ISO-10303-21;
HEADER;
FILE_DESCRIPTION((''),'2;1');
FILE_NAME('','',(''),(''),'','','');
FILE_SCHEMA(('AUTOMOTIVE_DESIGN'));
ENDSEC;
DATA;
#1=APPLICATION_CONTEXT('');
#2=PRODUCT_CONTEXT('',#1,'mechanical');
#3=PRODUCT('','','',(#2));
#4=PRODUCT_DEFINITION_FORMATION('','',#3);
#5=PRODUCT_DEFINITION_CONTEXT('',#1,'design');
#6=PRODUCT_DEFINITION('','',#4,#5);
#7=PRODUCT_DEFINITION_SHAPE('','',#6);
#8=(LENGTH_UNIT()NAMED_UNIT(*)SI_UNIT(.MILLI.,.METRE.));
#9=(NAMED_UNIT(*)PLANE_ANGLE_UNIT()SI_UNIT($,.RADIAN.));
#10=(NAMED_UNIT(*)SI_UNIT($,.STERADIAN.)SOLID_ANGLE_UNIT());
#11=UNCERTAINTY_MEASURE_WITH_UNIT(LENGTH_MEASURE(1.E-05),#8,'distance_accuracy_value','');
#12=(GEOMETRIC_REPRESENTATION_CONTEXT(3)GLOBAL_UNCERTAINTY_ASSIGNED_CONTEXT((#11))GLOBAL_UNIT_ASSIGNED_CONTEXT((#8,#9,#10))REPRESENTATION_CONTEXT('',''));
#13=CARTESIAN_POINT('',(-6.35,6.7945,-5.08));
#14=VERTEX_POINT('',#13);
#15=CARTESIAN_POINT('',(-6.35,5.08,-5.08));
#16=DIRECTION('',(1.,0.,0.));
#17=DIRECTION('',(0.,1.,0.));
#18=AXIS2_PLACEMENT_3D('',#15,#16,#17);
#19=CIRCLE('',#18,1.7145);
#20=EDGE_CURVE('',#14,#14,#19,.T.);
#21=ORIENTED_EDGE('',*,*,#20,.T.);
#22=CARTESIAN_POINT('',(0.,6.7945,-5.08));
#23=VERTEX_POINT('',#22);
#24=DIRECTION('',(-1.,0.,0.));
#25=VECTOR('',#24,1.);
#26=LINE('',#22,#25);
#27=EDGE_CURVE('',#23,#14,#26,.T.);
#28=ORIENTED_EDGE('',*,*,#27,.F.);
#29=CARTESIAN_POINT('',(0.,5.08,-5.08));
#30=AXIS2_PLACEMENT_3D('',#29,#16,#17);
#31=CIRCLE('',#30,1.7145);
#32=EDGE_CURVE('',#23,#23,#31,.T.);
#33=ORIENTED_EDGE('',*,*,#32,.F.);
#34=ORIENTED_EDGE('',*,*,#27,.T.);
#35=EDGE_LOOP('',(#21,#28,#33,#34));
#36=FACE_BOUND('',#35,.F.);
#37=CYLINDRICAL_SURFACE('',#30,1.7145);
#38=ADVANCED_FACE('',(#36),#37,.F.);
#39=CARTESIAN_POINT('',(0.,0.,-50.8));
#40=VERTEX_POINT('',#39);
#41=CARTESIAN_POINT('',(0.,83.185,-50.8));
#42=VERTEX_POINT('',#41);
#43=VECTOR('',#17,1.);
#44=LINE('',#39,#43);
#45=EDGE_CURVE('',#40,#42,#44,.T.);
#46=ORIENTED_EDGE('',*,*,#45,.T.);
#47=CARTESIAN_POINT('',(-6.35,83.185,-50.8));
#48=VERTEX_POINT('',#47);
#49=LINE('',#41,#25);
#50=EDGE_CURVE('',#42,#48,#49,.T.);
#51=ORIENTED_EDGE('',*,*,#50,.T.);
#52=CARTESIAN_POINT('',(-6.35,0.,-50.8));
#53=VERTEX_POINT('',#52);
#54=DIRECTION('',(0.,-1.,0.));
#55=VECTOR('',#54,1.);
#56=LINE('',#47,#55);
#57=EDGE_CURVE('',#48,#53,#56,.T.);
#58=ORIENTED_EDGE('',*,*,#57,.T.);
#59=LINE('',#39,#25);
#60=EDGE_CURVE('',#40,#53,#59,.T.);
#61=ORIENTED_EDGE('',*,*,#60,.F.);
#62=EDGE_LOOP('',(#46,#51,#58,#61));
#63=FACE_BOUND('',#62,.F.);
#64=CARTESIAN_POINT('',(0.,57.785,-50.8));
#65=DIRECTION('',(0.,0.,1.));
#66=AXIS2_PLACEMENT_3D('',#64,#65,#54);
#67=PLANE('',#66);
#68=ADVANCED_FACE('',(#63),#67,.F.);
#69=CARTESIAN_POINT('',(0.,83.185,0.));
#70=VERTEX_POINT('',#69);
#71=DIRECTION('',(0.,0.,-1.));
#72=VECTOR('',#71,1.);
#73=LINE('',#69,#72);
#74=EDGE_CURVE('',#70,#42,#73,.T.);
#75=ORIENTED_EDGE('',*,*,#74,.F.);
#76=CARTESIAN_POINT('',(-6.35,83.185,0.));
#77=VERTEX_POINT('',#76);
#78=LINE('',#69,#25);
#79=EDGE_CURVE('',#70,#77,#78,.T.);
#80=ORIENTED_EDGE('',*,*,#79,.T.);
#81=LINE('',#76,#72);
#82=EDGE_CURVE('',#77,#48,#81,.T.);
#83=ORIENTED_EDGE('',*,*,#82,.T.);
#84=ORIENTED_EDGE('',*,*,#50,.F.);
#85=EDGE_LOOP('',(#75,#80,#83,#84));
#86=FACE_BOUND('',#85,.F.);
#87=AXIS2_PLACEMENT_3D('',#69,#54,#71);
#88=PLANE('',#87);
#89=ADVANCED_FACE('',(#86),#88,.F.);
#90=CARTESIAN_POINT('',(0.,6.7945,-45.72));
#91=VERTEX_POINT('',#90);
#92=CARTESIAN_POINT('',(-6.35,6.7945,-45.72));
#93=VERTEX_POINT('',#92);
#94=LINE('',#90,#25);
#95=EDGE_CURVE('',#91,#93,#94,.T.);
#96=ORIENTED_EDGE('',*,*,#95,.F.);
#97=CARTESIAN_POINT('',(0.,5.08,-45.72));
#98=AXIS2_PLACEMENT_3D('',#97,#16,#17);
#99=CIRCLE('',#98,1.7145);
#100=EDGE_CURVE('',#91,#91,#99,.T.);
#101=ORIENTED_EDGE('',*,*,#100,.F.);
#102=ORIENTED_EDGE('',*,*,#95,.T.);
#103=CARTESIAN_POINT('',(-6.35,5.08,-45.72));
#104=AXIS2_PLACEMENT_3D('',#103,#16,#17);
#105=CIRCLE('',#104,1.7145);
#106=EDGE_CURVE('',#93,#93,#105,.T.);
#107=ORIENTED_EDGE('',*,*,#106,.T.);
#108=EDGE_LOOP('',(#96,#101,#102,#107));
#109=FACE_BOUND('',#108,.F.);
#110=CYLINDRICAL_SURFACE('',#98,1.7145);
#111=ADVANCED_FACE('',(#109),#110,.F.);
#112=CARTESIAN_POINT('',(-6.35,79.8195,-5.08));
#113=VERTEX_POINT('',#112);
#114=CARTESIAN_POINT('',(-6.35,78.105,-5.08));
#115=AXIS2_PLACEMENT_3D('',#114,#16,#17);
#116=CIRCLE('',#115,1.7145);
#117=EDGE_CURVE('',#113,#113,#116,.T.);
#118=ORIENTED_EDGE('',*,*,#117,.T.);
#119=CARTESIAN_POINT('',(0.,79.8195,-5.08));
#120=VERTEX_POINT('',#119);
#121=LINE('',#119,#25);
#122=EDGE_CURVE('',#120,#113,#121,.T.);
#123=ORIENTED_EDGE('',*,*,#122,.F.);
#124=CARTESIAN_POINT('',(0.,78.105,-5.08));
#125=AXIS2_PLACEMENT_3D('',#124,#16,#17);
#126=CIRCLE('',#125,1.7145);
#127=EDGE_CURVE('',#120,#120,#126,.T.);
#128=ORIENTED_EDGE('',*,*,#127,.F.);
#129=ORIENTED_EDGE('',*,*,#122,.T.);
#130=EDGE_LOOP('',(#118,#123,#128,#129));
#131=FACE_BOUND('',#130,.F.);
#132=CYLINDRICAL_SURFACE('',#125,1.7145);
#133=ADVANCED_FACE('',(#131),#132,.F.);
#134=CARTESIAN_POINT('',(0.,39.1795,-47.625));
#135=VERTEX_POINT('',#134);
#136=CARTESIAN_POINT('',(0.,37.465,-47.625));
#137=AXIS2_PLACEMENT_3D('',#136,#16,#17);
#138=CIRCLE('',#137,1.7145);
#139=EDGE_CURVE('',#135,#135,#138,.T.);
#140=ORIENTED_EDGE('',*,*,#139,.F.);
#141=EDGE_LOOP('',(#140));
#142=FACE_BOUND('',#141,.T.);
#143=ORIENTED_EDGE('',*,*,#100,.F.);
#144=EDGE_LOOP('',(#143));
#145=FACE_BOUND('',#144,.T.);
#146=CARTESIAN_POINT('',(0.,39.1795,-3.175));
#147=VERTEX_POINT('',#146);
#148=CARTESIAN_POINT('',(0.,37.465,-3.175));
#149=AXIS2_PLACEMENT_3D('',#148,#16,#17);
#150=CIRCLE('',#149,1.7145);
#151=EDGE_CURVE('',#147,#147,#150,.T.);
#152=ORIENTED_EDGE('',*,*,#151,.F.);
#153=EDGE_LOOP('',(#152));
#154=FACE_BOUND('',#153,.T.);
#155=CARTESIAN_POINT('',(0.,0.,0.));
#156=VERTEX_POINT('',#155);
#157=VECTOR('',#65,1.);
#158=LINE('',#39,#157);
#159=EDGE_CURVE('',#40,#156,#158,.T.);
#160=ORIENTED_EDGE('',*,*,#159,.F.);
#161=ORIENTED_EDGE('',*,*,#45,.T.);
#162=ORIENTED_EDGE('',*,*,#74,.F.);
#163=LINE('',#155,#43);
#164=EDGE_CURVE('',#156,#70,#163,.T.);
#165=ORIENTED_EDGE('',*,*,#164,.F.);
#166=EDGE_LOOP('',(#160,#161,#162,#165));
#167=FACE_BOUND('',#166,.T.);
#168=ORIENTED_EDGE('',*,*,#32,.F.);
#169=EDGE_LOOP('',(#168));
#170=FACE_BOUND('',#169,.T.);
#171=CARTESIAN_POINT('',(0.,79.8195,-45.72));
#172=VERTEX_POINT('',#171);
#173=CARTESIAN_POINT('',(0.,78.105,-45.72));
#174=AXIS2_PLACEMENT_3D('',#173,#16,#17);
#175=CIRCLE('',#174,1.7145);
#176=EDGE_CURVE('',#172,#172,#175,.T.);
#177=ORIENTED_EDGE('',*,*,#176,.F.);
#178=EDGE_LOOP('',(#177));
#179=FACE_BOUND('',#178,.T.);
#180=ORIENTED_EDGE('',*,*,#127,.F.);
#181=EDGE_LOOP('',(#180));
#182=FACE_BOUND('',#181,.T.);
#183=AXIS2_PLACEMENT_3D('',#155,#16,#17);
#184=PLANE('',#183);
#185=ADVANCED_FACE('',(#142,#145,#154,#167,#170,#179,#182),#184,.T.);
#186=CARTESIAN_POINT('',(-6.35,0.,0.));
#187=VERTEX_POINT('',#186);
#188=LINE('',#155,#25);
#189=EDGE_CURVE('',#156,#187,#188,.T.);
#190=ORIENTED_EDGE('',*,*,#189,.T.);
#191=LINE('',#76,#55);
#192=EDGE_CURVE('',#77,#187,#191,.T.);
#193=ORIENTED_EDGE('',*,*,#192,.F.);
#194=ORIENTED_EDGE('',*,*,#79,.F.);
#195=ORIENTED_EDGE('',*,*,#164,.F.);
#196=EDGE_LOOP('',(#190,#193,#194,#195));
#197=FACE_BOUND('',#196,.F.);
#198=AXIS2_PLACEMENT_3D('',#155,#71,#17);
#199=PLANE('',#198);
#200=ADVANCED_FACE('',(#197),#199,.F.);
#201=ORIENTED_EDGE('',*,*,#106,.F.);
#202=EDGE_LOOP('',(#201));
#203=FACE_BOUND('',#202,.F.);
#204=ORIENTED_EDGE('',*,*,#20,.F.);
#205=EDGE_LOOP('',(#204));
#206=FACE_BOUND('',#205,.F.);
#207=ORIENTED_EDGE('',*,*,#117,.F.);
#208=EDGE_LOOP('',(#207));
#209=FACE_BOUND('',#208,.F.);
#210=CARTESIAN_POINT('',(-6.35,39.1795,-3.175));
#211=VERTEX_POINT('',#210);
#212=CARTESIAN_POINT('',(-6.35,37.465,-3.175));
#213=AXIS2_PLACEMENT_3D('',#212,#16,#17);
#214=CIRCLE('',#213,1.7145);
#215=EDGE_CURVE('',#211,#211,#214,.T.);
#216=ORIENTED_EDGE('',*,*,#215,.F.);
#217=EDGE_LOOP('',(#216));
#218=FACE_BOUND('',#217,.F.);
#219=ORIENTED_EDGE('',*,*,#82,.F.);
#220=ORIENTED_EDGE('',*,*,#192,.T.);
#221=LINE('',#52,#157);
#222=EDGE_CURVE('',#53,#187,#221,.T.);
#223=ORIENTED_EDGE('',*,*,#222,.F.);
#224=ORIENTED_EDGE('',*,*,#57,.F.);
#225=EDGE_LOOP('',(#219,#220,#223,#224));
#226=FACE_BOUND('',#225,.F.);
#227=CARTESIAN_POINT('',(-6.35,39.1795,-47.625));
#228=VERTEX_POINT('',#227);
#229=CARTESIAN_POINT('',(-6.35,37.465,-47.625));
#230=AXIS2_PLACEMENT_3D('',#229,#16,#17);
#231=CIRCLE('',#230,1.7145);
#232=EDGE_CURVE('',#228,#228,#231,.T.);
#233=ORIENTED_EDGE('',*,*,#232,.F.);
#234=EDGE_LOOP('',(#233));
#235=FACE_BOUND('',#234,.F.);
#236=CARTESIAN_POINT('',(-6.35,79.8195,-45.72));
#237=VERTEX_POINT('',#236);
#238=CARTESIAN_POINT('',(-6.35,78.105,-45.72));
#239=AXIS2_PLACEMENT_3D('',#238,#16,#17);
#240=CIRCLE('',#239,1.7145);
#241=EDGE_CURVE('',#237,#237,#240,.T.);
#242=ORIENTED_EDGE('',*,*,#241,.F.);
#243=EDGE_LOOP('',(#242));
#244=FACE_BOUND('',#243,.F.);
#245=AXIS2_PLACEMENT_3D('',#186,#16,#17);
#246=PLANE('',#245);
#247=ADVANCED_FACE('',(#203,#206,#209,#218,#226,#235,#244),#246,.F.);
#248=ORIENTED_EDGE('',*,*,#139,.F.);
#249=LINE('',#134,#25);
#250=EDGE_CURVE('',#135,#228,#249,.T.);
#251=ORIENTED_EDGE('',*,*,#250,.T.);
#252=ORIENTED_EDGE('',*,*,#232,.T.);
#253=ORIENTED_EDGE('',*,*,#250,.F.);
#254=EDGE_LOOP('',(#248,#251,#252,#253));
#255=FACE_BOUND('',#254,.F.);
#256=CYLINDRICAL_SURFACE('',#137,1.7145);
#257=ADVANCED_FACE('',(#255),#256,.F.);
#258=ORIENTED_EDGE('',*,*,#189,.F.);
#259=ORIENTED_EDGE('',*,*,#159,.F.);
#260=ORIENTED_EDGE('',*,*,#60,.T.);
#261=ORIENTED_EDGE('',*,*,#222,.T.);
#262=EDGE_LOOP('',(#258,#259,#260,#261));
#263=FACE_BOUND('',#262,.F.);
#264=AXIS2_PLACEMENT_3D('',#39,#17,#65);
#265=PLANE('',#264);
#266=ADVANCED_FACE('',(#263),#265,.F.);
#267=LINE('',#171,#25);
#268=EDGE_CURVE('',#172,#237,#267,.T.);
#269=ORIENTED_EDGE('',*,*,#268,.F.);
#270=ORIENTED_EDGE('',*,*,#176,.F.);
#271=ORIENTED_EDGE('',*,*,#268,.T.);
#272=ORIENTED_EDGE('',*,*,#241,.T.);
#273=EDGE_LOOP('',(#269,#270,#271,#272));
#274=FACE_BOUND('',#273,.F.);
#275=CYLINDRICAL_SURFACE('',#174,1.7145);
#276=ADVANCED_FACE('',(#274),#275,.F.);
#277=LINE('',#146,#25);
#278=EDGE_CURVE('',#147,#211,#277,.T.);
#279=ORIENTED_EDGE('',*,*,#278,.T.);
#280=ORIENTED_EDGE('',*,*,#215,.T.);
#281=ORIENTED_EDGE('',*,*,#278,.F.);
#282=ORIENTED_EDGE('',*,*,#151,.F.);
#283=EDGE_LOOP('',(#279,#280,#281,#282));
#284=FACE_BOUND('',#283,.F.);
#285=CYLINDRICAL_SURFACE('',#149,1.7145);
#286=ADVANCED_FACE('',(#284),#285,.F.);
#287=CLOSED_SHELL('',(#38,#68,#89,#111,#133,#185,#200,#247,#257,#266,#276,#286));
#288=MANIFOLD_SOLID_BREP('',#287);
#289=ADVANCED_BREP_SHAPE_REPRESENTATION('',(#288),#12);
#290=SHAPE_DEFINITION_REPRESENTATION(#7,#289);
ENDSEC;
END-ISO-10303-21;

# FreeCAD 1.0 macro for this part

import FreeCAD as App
import Part
import Sketcher
Q = App.Units.Quantity

doc = App.newDocument("Part")
body = doc.addObject("PartDesign::Body", "Body")

sketch1 = body.newObject("Sketcher::SketchObject", "Sketch")
sketch1.AttachmentSupport = (doc.getObject("YZ_Plane"), [""])
sketch1.MapMode = "FlatFace"
sketch1.addGeometry(Part.LineSegment(App.Vector(0, 0, 0), App.Vector(0, -50.8, 0)), False)
sketch1.addGeometry(Part.LineSegment(App.Vector(0, -50.8, 0), App.Vector(83.2, -50.8, 0)), False)
sketch1.addGeometry(Part.LineSegment(App.Vector(83.2, -50.8, 0), App.Vector(83.2, 0, 0)), False)
sketch1.addGeometry(Part.LineSegment(App.Vector(83.2, 0, 0), App.Vector(0, 0, 0)), False)
sketch1.addGeometry(Part.Circle(App.Vector(5.1, -45.7, 0), App.Vector(0, 0, 1), 1.7), False)
sketch1.addGeometry(Part.Circle(App.Vector(37.5, -47.6, 0), App.Vector(0, 0, 1), 1.7), False)
sketch1.addGeometry(Part.Circle(App.Vector(5.1, -5.1, 0), App.Vector(0, 0, 1), 1.7), False)
sketch1.addGeometry(Part.Circle(App.Vector(37.5, -3.2, 0), App.Vector(0, 0, 1), 1.7), False)
sketch1.addGeometry(Part.Circle(App.Vector(78.1, -45.7, 0), App.Vector(0, 0, 1), 1.7), False)
sketch1.addGeometry(Part.Circle(App.Vector(78.1, -5.1, 0), App.Vector(0, 0, 1), 1.7), False)
sketch1.addConstraint(Sketcher.Constraint("Coincident", 0, 2, 1, 1))
sketch1.addConstraint(Sketcher.Constraint("Coincident", 1, 2, 2, 1))
sketch1.addConstraint(Sketcher.Constraint("Coincident", 2, 2, 3, 1))
sketch1.addConstraint(Sketcher.Constraint("Coincident", 3, 2, 0, 1))
sketch1.addConstraint(Sketcher.Constraint("Vertical", 0))
sketch1.addConstraint(Sketcher.Constraint("Horizontal", 1))
sketch1.addConstraint(Sketcher.Constraint("Vertical", 2))
sketch1.addConstraint(Sketcher.Constraint("Horizontal", 3))
sketch1.addConstraint(Sketcher.Constraint("Coincident", 3, 2, -1, 1))
sketch1.addConstraint(Sketcher.Constraint("Equal", 4, 5))
sketch1.addConstraint(Sketcher.Constraint("Equal", 5, 6))
sketch1.addConstraint(Sketcher.Constraint("Equal", 6, 7))
sketch1.addConstraint(Sketcher.Constraint("Equal", 7, 8))
sketch1.addConstraint(Sketcher.Constraint("Equal", 8, 9))
sketch1.addConstraint(Sketcher.Constraint("Horizontal", 4, 3, 8, 3))
sketch1.addConstraint(Sketcher.Constraint("Horizontal", 6, 3, 9, 3))
sketch1.addConstraint(Sketcher.Constraint("Vertical", 4, 3, 6, 3))
sketch1.addConstraint(Sketcher.Constraint("Vertical", 5, 3, 7, 3))
sketch1.addConstraint(Sketcher.Constraint("Vertical", 8, 3, 9, 3))
sketch1.addConstraint(Sketcher.Constraint("DistanceY", 0, 2, 0, 1, Q("2 in")))
sketch1.addConstraint(Sketcher.Constraint("Diameter", 4, Q("0.135 in")))
sketch1.addConstraint(Sketcher.Constraint("DistanceX", -1, 1, 4, 3, Q("0.2 in")))
sketch1.addConstraint(Sketcher.Constraint("DistanceY", 4, 3, -1, 1, Q("1.8 in")))
sketch1.addConstraint(Sketcher.Constraint("DistanceY", 6, 3, -1, 1, Q("0.2 in")))
sketch1.addConstraint(Sketcher.Constraint("DistanceX", 8, 3, 1, 2, Q("0.2 in")))
sketch1.addConstraint(Sketcher.Constraint("DistanceX", 5, 3, 1, 2, Q("1.8 in")))
sketch1.addConstraint(Sketcher.Constraint("DistanceX", 1, 1, 1, 2, Q("3.275 in")))
sketch1.addConstraint(Sketcher.Constraint("DistanceY", 7, 3, -1, 1, Q("0.125 in")))
sketch1.addConstraint(Sketcher.Constraint("DistanceY", 0, 2, 5, 3, Q("0.125 in")))
pad1 = body.newObject("PartDesign::Pad", "Pad")
pad1.Profile = sketch1
pad1.Length = Q("0.25 in")
pad1.Reversed = True

doc.recompute()
